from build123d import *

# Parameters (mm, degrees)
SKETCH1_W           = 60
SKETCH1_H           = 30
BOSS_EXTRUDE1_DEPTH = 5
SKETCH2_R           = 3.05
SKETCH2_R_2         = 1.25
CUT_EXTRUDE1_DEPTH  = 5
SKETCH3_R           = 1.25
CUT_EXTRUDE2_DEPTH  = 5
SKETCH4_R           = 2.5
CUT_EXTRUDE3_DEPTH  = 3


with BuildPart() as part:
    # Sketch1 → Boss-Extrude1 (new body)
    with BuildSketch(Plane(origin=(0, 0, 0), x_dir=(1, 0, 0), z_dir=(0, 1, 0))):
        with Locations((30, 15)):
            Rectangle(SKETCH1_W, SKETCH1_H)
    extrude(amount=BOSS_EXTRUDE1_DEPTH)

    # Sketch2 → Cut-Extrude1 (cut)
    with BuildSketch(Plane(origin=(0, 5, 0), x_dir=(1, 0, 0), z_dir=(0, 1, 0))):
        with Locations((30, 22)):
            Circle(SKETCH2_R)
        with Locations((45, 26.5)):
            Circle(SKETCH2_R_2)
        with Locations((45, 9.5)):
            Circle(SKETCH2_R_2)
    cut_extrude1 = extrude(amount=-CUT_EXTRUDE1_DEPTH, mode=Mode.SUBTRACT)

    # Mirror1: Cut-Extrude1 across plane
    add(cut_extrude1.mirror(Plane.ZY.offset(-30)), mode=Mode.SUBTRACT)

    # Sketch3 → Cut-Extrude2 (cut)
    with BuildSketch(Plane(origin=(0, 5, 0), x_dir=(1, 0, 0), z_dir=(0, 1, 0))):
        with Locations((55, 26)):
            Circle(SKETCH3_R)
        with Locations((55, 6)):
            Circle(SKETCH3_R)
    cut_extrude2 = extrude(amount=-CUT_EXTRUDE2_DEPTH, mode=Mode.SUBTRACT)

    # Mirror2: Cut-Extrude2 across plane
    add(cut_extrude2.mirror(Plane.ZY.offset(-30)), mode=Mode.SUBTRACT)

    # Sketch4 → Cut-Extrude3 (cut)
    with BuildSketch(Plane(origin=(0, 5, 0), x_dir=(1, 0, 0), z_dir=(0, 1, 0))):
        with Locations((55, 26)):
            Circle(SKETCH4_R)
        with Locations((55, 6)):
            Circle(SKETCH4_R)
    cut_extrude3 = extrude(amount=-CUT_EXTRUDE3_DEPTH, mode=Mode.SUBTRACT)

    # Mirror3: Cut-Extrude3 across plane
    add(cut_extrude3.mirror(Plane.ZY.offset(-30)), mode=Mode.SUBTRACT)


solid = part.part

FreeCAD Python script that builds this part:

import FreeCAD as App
import Part
import Sketcher
from FreeCAD import Vector
Q = App.Units.Quantity

doc = App.newDocument("Part")
params = doc.addObject("Spreadsheet::Sheet", "Params")
for row, (alias, value) in enumerate([
    ("sketch1_width", "60 mm"),
    ("sketch1_height", "30 mm"),
    ("pad1_length", "5 mm"),
    ("sketch2_diameter", "6.1 mm"),
    ("sketch2_diameter2", "2.5 mm"),
    ("pocket1_length", "5 mm"),
    ("sketch3_diameter", "2.5 mm"),
    ("pocket2_length", "5 mm"),
    ("sketch4_diameter", "5 mm"),
    ("pocket3_length", "3 mm"),
], start=1):
    params.set(f"A{row}", alias)
    params.set(f"B{row}", "=" + value)
    params.setAlias(f"B{row}", alias)

body = doc.addObject("PartDesign::Body", "Body")

sketch1 = body.newObject("Sketcher::SketchObject", "Sketch")
sketch1.AttachmentSupport = (doc.getObject("XZ_Plane"), [""])
sketch1.MapMode = "FlatFace"
sketch1.addGeometry(Part.LineSegment(Vector(0, -30, 0), Vector(0, 0, 0)), False)
sketch1.addGeometry(Part.LineSegment(Vector(0, 0, 0), Vector(60, 0, 0)), False)
sketch1.addGeometry(Part.LineSegment(Vector(60, 0, 0), Vector(60, -30, 0)), False)
sketch1.addGeometry(Part.LineSegment(Vector(60, -30, 0), Vector(0, -30, 0)), False)
sketch1.addConstraint(Sketcher.Constraint("Coincident", 0, 2, 1, 1))
sketch1.addConstraint(Sketcher.Constraint("Coincident", 1, 2, 2, 1))
sketch1.addConstraint(Sketcher.Constraint("Coincident", 2, 2, 3, 1))
sketch1.addConstraint(Sketcher.Constraint("Coincident", 3, 2, 0, 1))
sketch1.addConstraint(Sketcher.Constraint("Vertical", 0))
sketch1.addConstraint(Sketcher.Constraint("Horizontal", 1))
sketch1.addConstraint(Sketcher.Constraint("Vertical", 2))
sketch1.addConstraint(Sketcher.Constraint("Horizontal", 3))
sketch1.addConstraint(Sketcher.Constraint("Coincident", 0, 2, -1, 1))
sketch1.addConstraint(Sketcher.Constraint("DistanceX", 1, 1, 1, 2, Q("60 mm")))
sketch1.addConstraint(Sketcher.Constraint("DistanceY", 0, 1, 0, 2, Q("30 mm")))
sketch1.setExpression("Constraints[9]", "Params.sketch1_width")
sketch1.setExpression("Constraints[10]", "Params.sketch1_height")
pad1 = body.newObject("PartDesign::Pad", "Pad")
pad1.Profile = sketch1
pad1.setExpression("Length", "Params.pad1_length")
pad1.Reversed = True

sketch2 = body.newObject("Sketcher::SketchObject", "Sketch001")
sketch2.AttachmentSupport = (doc.getObject("XZ_Plane"), [""])
sketch2.MapMode = "FlatFace"
sketch2.AttachmentOffset = App.Placement(Vector(0, 0, -5), App.Rotation())
sketch2.addGeometry(Part.Circle(Vector(30, -22, 0), Vector(0, 0, 1), 3), False)
sketch2.addGeometry(Part.Circle(Vector(45, -26.5, 0), Vector(0, 0, 1), 1.2), False)
sketch2.addGeometry(Part.Circle(Vector(45, -9.5, 0), Vector(0, 0, 1), 1.2), False)
sketch2.addConstraint(Sketcher.Constraint("Equal", 1, 2))
sketch2.addConstraint(Sketcher.Constraint("Vertical", 1, 3, 2, 3))
sketch2.addConstraint(Sketcher.Constraint("Diameter", 0, Q("6.1 mm")))
sketch2.addConstraint(Sketcher.Constraint("Diameter", 1, Q("2.5 mm")))
sketch2.addConstraint(Sketcher.Constraint("DistanceX", -1, 1, 0, 3, Q("30 mm")))
sketch2.addConstraint(Sketcher.Constraint("DistanceY", 0, 3, -1, 1, Q("22 mm")))
sketch2.addConstraint(Sketcher.Constraint("DistanceX", -1, 1, 1, 3, Q("45 mm")))
sketch2.addConstraint(Sketcher.Constraint("DistanceY", 1, 3, 2, 3, Q("17 mm")))
sketch2.addConstraint(Sketcher.Constraint("DistanceY", 1, 3, -1, 1, Q("26.5 mm")))
sketch2.setExpression("Constraints[2]", "Params.sketch2_diameter")
sketch2.setExpression("Constraints[3]", "Params.sketch2_diameter2")
pocket1 = body.newObject("PartDesign::Pocket", "Pocket")
pocket1.Profile = sketch2
pocket1.setExpression("Length", "Params.pocket1_length")
pocket1.Reversed = True
doc.recompute()

datumplane = body.newObject("PartDesign::Plane", "DatumPlane")
datumplane.AttachmentSupport = (doc.getObject("YZ_Plane"), [""])
datumplane.MapMode = "FlatFace"
datumplane.AttachmentOffset = App.Placement(Vector(0, 0, 30), App.Rotation())
mirrored = body.newObject("PartDesign::Mirrored", "Mirrored")
mirrored.Originals = [pocket1]
mirrored.MirrorPlane = (datumplane, [""])
body.Tip = mirrored

sketch3 = body.newObject("Sketcher::SketchObject", "Sketch002")
sketch3.AttachmentSupport = (doc.getObject("XZ_Plane"), [""])
sketch3.MapMode = "FlatFace"
sketch3.AttachmentOffset = App.Placement(Vector(0, 0, -5), App.Rotation())
sketch3.addGeometry(Part.Circle(Vector(55, -26, 0), Vector(0, 0, 1), 1.2), False)
sketch3.addGeometry(Part.Circle(Vector(55, -6, 0), Vector(0, 0, 1), 1.2), False)
sketch3.addConstraint(Sketcher.Constraint("Equal", 0, 1))
sketch3.addConstraint(Sketcher.Constraint("Vertical", 0, 3, 1, 3))
sketch3.addConstraint(Sketcher.Constraint("Diameter", 0, Q("2.5 mm")))
sketch3.addConstraint(Sketcher.Constraint("DistanceX", -1, 1, 0, 3, Q("55 mm")))
sketch3.addConstraint(Sketcher.Constraint("DistanceY", 0, 3, -1, 1, Q("26 mm")))
sketch3.addConstraint(Sketcher.Constraint("DistanceY", 1, 3, -1, 1, Q("6 mm")))
sketch3.setExpression("Constraints[2]", "Params.sketch3_diameter")
pocket2 = body.newObject("PartDesign::Pocket", "Pocket001")
pocket2.Profile = sketch3
pocket2.setExpression("Length", "Params.pocket2_length")
pocket2.Reversed = True
doc.recompute()

datumplane2 = body.newObject("PartDesign::Plane", "DatumPlane001")
datumplane2.AttachmentSupport = (doc.getObject("YZ_Plane"), [""])
datumplane2.MapMode = "FlatFace"
datumplane2.AttachmentOffset = App.Placement(Vector(0, 0, 30), App.Rotation())
mirrored2 = body.newObject("PartDesign::Mirrored", "Mirrored001")
mirrored2.Originals = [pocket2]
mirrored2.MirrorPlane = (datumplane2, [""])
body.Tip = mirrored2

sketch4 = body.newObject("Sketcher::SketchObject", "Sketch003")
sketch4.AttachmentSupport = (doc.getObject("XZ_Plane"), [""])
sketch4.MapMode = "FlatFace"
sketch4.AttachmentOffset = App.Placement(Vector(0, 0, -5), App.Rotation())
sketch4.addGeometry(Part.Circle(Vector(55, -26, 0), Vector(0, 0, 1), 2.5), False)
sketch4.addGeometry(Part.Circle(Vector(55, -6, 0), Vector(0, 0, 1), 2.5), False)
sketch4.addConstraint(Sketcher.Constraint("Equal", 0, 1))
sketch4.addConstraint(Sketcher.Constraint("Vertical", 0, 3, 1, 3))
sketch4.addConstraint(Sketcher.Constraint("Diameter", 0, Q("5 mm")))
sketch4.addConstraint(Sketcher.Constraint("DistanceX", -1, 1, 0, 3, Q("55 mm")))
sketch4.addConstraint(Sketcher.Constraint("DistanceY", 0, 3, -1, 1, Q("26 mm")))
sketch4.addConstraint(Sketcher.Constraint("DistanceY", 1, 3, -1, 1, Q("6 mm")))
sketch4.setExpression("Constraints[2]", "Params.sketch4_diameter")
pocket3 = body.newObject("PartDesign::Pocket", "Pocket002")
pocket3.Profile = sketch4
pocket3.setExpression("Length", "Params.pocket3_length")
pocket3.Reversed = True
doc.recompute()

datumplane3 = body.newObject("PartDesign::Plane", "DatumPlane002")
datumplane3.AttachmentSupport = (doc.getObject("YZ_Plane"), [""])
datumplane3.MapMode = "FlatFace"
datumplane3.AttachmentOffset = App.Placement(Vector(0, 0, 30), App.Rotation())
mirrored3 = body.newObject("PartDesign::Mirrored", "Mirrored002")
mirrored3.Originals = [pocket3]
mirrored3.MirrorPlane = (datumplane3, [""])
body.Tip = mirrored3

doc.recompute()
